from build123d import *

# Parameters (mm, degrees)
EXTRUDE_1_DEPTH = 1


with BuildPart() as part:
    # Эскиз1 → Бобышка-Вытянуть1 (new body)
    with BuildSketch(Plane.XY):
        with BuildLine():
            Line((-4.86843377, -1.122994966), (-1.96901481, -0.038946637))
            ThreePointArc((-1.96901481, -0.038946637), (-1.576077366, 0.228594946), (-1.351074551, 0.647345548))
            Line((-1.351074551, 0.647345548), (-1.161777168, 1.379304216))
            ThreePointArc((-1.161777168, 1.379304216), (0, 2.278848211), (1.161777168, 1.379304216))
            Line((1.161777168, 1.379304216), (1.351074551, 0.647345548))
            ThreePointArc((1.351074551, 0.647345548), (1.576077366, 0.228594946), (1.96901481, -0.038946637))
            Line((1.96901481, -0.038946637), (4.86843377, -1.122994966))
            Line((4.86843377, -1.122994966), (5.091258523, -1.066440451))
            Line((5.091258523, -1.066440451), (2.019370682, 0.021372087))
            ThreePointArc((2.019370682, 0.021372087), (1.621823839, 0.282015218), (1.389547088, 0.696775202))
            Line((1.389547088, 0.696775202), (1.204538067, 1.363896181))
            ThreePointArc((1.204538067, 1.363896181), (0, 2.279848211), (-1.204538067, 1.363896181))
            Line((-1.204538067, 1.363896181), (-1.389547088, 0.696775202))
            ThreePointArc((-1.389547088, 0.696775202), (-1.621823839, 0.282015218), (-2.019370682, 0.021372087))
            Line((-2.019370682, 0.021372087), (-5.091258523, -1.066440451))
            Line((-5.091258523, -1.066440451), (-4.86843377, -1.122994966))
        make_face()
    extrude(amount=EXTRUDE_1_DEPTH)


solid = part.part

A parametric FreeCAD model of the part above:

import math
import FreeCAD as App
import Part
import Sketcher
Q = App.Units.Quantity

doc = App.newDocument("Part")
params = doc.addObject("Spreadsheet::Sheet", "Params")
for row, (alias, value) in enumerate([
    ("sketch1_radius", "1 mm"),
    ("sketch1_radius2", "1.2 mm"),
    ("sketch1_radius3", "1.25 mm"),
    ("pad1_length", "1 mm"),
], start=1):
    params.set(f"A{row}", alias)
    params.set(f"B{row}", "=" + value)
    params.setAlias(f"B{row}", alias)

body = doc.addObject("PartDesign::Body", "Body")

sketch1 = body.newObject("Sketcher::SketchObject", "Sketch")
sketch1.AttachmentSupport = (doc.getObject("XY_Plane"), [""])
sketch1.MapMode = "FlatFace"
sketch1.addGeometry([
    Part.LineSegment(App.Vector(-4.868434, -1.122995, 0), App.Vector(-1.969015, -0.038947, 0)),
    Part.ArcOfCircle(Part.Circle(App.Vector(-2.319222, 0.897726, 0), App.Vector(0, 0, 1), 1), math.radians(-69.5), math.radians(-14.5)),
    Part.LineSegment(App.Vector(-1.351075, 0.647346, 0), App.Vector(-1.161777, 1.379304, 0)),
    Part.ArcOfCircle(Part.Circle(App.Vector(0, 1.078848, 0), App.Vector(0, 0, 1), 1.2), math.radians(14.5), math.radians(165.5)),
    Part.LineSegment(App.Vector(1.161777, 1.379304, 0), App.Vector(1.351075, 0.647346, 0)),
    Part.ArcOfCircle(Part.Circle(App.Vector(2.319222, 0.897726, 0), App.Vector(0, 0, 1), 1), math.radians(-165.5), math.radians(-110.5)),
    Part.LineSegment(App.Vector(1.969015, -0.038947, 0), App.Vector(4.868434, -1.122995, 0)),
    Part.LineSegment(App.Vector(4.868434, -1.122995, 0), App.Vector(5.091259, -1.06644, 0)),
    Part.LineSegment(App.Vector(5.091259, -1.06644, 0), App.Vector(2.019371, 0.021372, 0)),
    Part.ArcOfCircle(Part.Circle(App.Vector(2.353178, 0.964014, 0), App.Vector(0, 0, 1), 1), math.radians(-164.5), math.radians(-109.5)),
    Part.LineSegment(App.Vector(1.389547, 0.696775, 0), App.Vector(1.204538, 1.363896, 0)),
    Part.ArcOfCircle(Part.Circle(App.Vector(0, 1.029848, 0), App.Vector(0, 0, 1), 1.25), math.radians(15.5), math.radians(164.5)),
    Part.LineSegment(App.Vector(-1.204538, 1.363896, 0), App.Vector(-1.389547, 0.696775, 0)),
    Part.ArcOfCircle(Part.Circle(App.Vector(-2.353178, 0.964014, 0), App.Vector(0, 0, 1), 1), math.radians(-70.5), math.radians(-15.5)),
    Part.LineSegment(App.Vector(-2.019371, 0.021372, 0), App.Vector(-5.091259, -1.06644, 0)),
    Part.LineSegment(App.Vector(-5.091259, -1.06644, 0), App.Vector(-4.868434, -1.122995, 0)),
], False)
sketch1.addConstraint([
    Sketcher.Constraint("Tangent", 0, 2, 1, 1),
    Sketcher.Constraint("Tangent", 1, 2, 2, 1),
    Sketcher.Constraint("Tangent", 2, 2, 3, 2),
    Sketcher.Constraint("Tangent", 3, 1, 4, 1),
    Sketcher.Constraint("Tangent", 4, 2, 5, 1),
    Sketcher.Constraint("Tangent", 5, 2, 6, 1),
    Sketcher.Constraint("Coincident", 6, 2, 7, 1),
    Sketcher.Constraint("Coincident", 7, 2, 8, 1),
    Sketcher.Constraint("Tangent", 8, 2, 9, 2),
    Sketcher.Constraint("Tangent", 9, 1, 10, 1),
    Sketcher.Constraint("Tangent", 10, 2, 11, 1),
    Sketcher.Constraint("Tangent", 11, 2, 12, 1),
    Sketcher.Constraint("Tangent", 12, 2, 13, 2),
    Sketcher.Constraint("Tangent", 13, 1, 14, 1),
    Sketcher.Constraint("Coincident", 14, 2, 15, 1),
    Sketcher.Constraint("Coincident", 15, 2, 0, 1),
    Sketcher.Constraint("Equal", 1, 5),
    Sketcher.Constraint("Equal", 5, 9),
    Sketcher.Constraint("Equal", 9, 13),
    Sketcher.Constraint("Symmetric", 1, 3, 5, 3, -2),
    Sketcher.Constraint("Symmetric", 9, 3, 13, 3, -2),
    Sketcher.Constraint("Symmetric", 7, 2, 14, 2, -2),
    Sketcher.Constraint("Symmetric", 6, 2, 15, 2, -2),
    Sketcher.Constraint("PointOnObject", 3, 3, -2),
    Sketcher.Constraint("PointOnObject", 11, 3, -2),
    Sketcher.Constraint("Radius", 1, 1.0),
    Sketcher.Constraint("Radius", 3, 1.2),
    Sketcher.Constraint("Radius", 11, 1.25),
    Sketcher.Constraint("Angle", 0, Q("20.5 deg")),
    Sketcher.Constraint("Angle", 2, Q("75.5 deg")),
    Sketcher.Constraint("Angle", 8, Q("160.5 deg")),
    Sketcher.Constraint("Angle", 10, Q("105.5 deg")),
    Sketcher.Constraint("DistanceY", 11, 3, 3, 3, 0.049),
    Sketcher.Constraint("Distance", 10, 0.6923),
    Sketcher.Constraint("DistanceX", 1, 3, 9, 3, 4.6724),
    Sketcher.Constraint("DistanceY", 6, 2, 3, 1, 2.502299),
    Sketcher.Constraint("Distance", 7, 0.22989),
    Sketcher.Constraint("DistanceY", -1, 1, 3, 3, 1.078848),
])
sketch1.setExpression("Constraints[25]", "Params.sketch1_radius")
sketch1.setExpression("Constraints[26]", "Params.sketch1_radius2")
sketch1.setExpression("Constraints[27]", "Params.sketch1_radius3")
pad1 = body.newObject("PartDesign::Pad", "Pad")
pad1.Profile = sketch1
pad1.setExpression("Length", "Params.pad1_length")

doc.recompute()
